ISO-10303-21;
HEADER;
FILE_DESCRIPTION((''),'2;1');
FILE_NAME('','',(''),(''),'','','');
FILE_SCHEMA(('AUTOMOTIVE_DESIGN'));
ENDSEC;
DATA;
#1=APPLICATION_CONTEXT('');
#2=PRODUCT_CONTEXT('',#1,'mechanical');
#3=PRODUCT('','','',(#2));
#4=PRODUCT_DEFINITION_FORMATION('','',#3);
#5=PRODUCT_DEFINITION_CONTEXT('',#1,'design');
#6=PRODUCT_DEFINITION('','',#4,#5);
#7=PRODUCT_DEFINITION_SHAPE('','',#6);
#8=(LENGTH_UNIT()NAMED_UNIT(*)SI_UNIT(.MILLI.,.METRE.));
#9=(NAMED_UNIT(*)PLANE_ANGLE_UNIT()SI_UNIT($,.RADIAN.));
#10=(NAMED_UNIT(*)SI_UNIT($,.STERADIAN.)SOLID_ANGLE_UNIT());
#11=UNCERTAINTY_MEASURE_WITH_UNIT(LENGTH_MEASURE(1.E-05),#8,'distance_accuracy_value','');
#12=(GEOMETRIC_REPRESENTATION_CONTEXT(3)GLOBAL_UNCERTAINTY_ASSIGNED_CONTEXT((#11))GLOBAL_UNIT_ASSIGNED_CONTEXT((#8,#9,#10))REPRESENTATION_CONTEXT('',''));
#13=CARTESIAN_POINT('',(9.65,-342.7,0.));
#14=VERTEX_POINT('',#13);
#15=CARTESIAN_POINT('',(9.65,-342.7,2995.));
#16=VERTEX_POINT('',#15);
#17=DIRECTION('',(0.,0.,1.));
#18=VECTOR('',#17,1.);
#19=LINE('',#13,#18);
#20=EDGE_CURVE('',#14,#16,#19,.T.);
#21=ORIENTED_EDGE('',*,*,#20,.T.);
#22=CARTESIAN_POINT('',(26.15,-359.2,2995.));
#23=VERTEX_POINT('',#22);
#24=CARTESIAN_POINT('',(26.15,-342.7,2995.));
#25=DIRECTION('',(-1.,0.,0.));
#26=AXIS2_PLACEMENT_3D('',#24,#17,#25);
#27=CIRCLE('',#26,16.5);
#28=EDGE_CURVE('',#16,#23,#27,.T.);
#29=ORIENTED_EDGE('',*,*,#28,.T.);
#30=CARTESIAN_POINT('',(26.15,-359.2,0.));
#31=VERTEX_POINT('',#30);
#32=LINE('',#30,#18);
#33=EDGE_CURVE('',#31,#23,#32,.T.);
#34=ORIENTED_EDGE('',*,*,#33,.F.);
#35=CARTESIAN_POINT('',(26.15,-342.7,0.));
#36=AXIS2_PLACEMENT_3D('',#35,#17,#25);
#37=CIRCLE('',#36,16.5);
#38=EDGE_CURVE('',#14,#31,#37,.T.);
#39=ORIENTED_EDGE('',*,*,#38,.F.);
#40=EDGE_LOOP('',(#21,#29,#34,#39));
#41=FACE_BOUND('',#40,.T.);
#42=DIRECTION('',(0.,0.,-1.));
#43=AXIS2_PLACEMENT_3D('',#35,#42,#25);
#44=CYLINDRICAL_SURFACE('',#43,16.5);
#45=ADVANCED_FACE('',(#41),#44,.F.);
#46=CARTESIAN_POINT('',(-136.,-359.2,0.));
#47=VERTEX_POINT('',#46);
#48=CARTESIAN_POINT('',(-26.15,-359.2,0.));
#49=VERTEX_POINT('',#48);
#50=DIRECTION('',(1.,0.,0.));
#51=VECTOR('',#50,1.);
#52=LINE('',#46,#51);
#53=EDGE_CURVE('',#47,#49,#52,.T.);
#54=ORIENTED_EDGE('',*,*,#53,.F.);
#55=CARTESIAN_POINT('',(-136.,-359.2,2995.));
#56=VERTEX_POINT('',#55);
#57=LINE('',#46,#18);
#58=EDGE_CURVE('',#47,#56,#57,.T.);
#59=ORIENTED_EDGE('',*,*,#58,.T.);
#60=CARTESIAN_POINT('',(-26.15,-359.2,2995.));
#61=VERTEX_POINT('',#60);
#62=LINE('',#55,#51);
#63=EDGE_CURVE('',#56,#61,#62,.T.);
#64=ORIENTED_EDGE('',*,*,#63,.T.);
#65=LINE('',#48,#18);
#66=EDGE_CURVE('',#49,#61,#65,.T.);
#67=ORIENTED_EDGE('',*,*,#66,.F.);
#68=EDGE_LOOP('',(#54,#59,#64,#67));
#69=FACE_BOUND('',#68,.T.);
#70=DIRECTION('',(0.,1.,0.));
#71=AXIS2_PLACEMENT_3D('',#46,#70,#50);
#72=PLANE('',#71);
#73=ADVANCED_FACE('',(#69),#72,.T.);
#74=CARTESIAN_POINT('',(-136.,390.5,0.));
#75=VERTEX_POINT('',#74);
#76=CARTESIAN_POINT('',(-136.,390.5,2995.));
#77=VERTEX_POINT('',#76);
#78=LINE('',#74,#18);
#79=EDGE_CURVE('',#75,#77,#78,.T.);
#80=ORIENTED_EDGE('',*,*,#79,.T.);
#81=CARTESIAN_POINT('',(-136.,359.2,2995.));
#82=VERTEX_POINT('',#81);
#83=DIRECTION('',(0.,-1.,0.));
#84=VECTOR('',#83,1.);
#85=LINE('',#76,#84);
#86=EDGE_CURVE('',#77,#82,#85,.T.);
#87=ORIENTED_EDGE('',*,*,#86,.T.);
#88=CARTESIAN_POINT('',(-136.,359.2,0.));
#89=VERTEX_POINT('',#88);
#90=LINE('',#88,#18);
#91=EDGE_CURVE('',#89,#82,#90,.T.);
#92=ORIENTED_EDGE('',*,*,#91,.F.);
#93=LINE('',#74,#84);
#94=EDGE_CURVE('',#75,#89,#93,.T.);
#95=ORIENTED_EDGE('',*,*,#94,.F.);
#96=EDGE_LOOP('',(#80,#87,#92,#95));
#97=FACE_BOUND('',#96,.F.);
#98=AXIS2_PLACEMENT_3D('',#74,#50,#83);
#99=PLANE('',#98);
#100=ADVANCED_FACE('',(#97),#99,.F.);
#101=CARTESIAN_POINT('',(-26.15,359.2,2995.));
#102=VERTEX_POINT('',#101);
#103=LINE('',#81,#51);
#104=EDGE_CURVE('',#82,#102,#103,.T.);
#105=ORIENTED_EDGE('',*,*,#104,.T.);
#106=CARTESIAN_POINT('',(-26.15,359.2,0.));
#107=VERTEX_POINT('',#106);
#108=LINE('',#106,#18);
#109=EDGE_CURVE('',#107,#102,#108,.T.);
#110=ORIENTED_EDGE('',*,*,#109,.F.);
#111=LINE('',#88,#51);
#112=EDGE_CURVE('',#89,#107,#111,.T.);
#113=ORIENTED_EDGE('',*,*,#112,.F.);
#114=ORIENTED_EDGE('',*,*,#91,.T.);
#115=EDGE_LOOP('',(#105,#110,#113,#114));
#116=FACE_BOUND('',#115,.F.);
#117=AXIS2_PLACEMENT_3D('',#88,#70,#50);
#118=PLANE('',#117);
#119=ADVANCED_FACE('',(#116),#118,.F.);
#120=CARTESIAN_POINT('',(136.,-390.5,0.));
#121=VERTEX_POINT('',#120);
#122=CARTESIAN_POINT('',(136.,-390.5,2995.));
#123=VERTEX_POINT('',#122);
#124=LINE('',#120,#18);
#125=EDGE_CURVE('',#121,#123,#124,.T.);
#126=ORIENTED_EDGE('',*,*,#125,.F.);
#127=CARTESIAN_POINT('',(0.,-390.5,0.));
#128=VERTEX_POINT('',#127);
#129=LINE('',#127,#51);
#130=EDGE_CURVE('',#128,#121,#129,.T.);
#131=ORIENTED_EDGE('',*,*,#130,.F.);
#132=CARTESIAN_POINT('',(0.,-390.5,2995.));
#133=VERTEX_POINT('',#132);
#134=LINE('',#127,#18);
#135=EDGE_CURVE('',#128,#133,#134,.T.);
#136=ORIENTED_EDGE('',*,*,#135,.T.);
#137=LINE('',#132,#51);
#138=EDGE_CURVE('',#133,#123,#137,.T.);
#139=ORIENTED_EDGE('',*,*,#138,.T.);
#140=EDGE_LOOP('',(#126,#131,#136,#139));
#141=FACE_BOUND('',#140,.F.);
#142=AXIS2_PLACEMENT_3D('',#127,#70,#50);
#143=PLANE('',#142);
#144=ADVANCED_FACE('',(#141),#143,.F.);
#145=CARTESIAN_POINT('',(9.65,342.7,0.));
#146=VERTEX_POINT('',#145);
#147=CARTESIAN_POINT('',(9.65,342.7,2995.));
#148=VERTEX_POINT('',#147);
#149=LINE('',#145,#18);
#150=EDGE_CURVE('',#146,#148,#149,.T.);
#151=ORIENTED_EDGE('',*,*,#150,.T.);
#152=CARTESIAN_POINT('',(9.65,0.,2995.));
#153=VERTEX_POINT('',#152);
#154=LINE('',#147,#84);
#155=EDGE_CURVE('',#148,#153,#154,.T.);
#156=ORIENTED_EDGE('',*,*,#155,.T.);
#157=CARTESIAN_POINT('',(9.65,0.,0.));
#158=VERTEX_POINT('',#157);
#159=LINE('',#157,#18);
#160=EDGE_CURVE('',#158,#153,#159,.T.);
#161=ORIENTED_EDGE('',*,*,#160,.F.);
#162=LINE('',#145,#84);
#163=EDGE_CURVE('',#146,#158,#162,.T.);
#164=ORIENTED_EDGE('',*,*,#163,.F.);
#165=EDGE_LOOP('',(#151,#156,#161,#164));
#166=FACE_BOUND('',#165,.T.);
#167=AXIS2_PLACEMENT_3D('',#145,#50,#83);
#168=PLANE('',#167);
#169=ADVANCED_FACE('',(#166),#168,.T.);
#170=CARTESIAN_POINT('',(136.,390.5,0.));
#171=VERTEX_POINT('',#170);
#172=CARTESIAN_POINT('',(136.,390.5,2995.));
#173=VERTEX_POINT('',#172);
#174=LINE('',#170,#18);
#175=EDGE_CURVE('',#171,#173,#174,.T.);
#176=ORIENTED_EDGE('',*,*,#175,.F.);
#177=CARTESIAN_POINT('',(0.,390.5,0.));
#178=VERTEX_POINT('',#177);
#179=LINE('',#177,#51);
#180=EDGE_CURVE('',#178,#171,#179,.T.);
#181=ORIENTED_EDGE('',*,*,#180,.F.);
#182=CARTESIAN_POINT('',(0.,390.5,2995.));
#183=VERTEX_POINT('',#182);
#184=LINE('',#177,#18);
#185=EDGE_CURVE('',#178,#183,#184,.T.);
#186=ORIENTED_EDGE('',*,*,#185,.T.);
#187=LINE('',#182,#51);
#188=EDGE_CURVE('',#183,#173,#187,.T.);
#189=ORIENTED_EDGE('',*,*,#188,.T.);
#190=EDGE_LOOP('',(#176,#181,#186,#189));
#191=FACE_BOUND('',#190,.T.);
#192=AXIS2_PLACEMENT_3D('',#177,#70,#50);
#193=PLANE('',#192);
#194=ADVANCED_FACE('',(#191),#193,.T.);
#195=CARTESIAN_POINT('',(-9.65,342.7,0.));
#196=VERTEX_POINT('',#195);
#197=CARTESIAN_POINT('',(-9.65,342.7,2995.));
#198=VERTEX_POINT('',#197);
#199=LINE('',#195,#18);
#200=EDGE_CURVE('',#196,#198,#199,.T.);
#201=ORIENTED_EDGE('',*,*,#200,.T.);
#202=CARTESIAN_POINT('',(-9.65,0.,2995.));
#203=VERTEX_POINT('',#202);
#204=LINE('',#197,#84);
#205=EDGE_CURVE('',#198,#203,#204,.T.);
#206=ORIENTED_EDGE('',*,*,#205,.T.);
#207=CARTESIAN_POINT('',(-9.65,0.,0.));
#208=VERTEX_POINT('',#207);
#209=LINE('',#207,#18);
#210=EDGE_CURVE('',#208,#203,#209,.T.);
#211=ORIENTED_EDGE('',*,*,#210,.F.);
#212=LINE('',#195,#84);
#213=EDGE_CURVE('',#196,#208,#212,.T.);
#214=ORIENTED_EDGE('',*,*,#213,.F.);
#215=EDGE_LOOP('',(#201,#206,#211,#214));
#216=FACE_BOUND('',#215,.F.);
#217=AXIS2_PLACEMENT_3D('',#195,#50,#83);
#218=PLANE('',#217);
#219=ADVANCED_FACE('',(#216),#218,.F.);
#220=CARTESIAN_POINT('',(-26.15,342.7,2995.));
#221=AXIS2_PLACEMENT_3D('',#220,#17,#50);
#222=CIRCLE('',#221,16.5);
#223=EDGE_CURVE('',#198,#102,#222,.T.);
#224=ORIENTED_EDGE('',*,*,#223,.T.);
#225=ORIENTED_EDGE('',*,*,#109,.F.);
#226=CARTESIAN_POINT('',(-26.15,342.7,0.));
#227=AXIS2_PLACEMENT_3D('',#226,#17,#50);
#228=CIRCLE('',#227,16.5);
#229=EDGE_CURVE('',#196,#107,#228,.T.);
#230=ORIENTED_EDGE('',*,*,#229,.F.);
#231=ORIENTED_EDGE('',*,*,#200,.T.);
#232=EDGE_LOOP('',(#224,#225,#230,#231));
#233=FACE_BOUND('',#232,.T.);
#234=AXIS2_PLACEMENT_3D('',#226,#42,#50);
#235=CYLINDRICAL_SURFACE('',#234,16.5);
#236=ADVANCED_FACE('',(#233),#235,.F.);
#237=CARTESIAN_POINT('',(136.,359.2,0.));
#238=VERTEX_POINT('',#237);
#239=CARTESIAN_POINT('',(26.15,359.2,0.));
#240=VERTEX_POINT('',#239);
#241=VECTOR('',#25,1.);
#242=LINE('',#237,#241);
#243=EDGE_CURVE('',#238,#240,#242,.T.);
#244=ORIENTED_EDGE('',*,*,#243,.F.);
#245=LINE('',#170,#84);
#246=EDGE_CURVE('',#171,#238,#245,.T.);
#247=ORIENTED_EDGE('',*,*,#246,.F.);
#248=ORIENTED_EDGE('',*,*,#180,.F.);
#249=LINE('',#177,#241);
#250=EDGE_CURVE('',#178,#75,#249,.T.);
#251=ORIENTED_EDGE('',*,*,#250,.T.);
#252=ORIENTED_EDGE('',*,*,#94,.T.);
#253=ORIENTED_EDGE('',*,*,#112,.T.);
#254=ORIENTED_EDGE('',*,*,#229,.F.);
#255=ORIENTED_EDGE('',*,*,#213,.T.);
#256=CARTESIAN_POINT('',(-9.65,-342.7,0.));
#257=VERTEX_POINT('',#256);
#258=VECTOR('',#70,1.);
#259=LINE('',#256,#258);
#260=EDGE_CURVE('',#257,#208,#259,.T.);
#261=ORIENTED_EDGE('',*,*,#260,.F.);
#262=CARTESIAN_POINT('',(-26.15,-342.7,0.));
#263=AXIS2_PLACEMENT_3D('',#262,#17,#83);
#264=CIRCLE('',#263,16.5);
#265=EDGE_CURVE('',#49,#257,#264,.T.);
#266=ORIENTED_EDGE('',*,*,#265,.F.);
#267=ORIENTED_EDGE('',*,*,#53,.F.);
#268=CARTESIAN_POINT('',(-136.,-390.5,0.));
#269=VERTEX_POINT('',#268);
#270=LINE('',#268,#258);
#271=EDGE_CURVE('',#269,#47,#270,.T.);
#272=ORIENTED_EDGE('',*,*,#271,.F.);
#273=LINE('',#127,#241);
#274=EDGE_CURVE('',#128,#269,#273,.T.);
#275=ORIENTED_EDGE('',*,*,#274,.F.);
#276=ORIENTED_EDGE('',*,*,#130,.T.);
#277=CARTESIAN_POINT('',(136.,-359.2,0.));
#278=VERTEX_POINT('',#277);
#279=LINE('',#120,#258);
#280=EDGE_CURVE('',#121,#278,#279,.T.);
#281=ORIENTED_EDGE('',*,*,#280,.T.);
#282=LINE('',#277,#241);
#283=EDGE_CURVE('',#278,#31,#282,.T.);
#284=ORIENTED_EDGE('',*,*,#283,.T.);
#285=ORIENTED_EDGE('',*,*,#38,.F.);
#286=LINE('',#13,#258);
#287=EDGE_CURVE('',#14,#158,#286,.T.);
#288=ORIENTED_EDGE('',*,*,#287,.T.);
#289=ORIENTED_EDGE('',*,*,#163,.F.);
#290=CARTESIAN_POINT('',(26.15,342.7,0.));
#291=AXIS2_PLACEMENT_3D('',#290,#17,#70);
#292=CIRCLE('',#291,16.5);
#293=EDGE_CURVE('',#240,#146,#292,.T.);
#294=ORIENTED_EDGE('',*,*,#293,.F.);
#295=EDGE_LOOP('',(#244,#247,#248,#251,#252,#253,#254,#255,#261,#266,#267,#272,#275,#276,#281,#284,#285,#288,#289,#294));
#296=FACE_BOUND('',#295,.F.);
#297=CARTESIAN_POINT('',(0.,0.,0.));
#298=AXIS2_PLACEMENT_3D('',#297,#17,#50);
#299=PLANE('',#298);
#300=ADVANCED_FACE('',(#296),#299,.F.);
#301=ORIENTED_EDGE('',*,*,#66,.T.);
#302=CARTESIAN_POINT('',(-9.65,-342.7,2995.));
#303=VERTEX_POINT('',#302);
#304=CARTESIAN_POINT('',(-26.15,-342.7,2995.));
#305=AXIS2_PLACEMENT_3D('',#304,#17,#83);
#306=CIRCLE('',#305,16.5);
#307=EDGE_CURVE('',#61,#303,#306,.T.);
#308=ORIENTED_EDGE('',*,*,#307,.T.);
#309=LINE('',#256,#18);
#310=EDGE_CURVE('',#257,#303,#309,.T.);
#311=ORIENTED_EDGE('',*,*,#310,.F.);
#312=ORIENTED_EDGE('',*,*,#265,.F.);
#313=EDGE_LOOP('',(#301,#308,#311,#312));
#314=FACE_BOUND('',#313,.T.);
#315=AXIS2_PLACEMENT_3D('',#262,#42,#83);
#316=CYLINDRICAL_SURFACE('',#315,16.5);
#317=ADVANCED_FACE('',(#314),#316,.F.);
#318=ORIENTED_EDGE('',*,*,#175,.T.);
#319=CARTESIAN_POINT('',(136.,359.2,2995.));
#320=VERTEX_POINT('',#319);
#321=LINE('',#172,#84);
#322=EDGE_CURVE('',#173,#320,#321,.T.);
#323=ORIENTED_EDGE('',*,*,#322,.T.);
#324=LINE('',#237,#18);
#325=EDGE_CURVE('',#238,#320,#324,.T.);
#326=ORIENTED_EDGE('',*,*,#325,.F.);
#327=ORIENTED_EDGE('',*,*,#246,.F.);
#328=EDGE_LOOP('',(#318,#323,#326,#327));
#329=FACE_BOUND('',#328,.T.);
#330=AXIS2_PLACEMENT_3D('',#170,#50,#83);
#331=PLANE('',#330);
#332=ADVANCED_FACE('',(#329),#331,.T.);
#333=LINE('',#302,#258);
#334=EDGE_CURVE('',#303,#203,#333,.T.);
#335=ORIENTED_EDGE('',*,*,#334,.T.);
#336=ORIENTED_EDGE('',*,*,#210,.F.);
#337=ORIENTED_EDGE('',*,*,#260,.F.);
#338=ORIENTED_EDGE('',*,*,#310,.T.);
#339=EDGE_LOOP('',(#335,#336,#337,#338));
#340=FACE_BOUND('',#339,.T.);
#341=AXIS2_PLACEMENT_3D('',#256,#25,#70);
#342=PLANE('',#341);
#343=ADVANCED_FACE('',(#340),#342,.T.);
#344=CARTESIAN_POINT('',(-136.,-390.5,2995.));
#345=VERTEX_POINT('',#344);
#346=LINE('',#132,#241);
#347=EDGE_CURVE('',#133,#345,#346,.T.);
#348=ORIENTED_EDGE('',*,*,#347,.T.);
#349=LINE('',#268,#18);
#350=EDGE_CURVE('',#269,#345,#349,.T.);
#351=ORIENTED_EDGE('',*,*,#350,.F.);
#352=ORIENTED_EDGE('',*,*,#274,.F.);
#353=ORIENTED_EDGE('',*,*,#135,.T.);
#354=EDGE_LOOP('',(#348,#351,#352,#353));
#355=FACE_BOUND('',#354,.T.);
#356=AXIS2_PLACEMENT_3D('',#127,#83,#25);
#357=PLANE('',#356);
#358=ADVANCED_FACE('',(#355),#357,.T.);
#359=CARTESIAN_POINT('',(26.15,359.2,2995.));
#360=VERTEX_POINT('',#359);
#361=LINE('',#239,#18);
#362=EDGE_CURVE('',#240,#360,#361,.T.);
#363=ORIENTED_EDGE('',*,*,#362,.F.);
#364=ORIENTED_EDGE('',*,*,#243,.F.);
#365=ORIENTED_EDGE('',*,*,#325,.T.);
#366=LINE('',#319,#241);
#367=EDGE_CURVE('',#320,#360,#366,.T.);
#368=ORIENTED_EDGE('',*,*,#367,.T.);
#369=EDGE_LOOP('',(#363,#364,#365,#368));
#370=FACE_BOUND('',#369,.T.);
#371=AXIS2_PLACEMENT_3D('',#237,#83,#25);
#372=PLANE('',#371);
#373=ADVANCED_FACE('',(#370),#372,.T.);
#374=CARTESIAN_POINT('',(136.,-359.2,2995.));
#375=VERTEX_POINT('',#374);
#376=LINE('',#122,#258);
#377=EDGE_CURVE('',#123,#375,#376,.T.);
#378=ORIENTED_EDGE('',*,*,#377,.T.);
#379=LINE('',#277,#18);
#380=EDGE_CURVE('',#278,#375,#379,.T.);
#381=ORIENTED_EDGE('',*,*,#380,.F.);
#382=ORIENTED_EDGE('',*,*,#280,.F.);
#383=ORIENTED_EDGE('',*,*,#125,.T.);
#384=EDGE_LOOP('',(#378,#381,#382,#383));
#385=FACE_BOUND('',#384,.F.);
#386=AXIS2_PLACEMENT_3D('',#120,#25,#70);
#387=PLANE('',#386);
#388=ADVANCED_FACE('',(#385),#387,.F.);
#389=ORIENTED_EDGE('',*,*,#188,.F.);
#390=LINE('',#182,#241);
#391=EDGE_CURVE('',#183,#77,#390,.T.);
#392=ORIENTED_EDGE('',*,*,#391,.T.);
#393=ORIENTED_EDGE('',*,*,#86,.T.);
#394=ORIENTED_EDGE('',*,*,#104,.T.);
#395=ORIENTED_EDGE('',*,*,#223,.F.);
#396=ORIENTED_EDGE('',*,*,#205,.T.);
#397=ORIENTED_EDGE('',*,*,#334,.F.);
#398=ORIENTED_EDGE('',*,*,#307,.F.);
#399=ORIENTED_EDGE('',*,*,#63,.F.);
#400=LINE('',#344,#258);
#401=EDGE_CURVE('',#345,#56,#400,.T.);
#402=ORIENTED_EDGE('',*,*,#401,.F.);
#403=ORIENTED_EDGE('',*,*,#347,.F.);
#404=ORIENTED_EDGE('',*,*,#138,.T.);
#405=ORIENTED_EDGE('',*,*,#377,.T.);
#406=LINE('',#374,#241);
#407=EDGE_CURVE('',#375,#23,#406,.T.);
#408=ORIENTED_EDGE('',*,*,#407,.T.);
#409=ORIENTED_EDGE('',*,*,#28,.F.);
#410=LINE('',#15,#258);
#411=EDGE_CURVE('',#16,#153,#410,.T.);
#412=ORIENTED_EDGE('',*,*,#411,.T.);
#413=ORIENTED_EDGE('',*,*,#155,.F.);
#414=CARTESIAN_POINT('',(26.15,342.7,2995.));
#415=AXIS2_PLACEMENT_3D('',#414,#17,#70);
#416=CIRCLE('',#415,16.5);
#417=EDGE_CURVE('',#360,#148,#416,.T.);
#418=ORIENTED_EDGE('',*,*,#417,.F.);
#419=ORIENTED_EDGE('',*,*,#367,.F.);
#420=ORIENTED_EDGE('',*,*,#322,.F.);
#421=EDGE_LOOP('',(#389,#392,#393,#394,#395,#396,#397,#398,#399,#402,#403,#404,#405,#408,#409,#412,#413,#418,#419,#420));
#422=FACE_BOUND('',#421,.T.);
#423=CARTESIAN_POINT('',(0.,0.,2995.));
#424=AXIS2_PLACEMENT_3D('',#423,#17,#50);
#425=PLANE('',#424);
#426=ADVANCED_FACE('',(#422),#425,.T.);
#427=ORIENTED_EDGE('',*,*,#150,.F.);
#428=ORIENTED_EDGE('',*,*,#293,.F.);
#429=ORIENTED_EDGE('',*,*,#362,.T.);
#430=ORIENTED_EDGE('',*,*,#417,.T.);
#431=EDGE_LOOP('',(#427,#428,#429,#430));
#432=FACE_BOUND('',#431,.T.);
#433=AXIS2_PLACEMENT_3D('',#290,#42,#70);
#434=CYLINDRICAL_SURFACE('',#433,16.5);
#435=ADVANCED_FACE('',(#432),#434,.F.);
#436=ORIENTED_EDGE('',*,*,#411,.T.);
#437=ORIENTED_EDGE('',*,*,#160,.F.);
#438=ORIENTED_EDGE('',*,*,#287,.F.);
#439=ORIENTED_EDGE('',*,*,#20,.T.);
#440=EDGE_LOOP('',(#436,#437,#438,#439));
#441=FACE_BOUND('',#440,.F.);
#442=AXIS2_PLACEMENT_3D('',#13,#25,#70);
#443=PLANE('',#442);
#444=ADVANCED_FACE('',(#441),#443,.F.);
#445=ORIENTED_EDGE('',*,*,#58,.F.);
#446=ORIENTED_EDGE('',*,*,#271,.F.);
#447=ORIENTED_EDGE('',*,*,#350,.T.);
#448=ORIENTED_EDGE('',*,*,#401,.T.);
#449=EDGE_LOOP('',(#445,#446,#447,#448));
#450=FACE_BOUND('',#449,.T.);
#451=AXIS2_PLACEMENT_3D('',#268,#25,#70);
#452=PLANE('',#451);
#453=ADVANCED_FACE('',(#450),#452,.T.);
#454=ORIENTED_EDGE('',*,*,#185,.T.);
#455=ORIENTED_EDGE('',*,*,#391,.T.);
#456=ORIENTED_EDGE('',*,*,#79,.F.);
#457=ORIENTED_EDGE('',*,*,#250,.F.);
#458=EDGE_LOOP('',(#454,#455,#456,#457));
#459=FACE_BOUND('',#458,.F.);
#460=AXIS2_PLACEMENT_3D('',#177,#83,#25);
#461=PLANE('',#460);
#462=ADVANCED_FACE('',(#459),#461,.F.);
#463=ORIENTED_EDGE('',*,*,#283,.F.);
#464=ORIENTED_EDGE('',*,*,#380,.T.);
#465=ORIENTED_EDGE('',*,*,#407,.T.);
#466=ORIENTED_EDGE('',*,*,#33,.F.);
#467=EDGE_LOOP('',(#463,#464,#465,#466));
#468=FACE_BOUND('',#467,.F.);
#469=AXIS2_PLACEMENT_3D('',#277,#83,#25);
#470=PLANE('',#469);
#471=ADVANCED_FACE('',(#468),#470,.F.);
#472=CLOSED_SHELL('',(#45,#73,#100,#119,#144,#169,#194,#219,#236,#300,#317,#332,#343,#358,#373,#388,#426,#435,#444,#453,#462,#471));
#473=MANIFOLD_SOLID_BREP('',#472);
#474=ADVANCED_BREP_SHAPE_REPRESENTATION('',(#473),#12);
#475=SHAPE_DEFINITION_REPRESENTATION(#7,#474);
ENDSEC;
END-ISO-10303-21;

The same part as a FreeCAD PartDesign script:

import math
import FreeCAD as App
import Part
import Sketcher
from FreeCAD import Vector

doc = App.newDocument("Part")
params = doc.addObject("Spreadsheet::Sheet", "Params")
for row, (alias, value) in enumerate([
    ("sketch1_radius", "16.5 mm"),
    ("sketch1_height", "31.3 mm"),
    ("pad1_length", "2995 mm"),
], start=1):
    params.set(f"A{row}", alias)
    params.set(f"B{row}", "=" + value)
    params.setAlias(f"B{row}", alias)

body = doc.addObject("PartDesign::Body", "Body")

sketch1 = body.newObject("Sketcher::SketchObject", "Sketch")
sketch1.AttachmentSupport = (doc.getObject("XY_Plane"), [""])
sketch1.MapMode = "FlatFace"
sketch1.addGeometry([
    Part.LineSegment(Vector(-136, -359, 0), Vector(-136, -390, 0)),
    Part.LineSegment(Vector(-136, -390, 0), Vector(136, -390, 0)),
    Part.LineSegment(Vector(136, -390, 0), Vector(136, -359, 0)),
    Part.LineSegment(Vector(136, -359, 0), Vector(26, -359, 0)),
    Part.ArcOfCircle(Part.Circle(Vector(26, -343, 0), Vector(0, 0, 1), 16), math.radians(180), math.radians(270)),
    Part.LineSegment(Vector(10, -343, 0), Vector(10, 343, 0)),
    Part.ArcOfCircle(Part.Circle(Vector(26, 343, 0), Vector(0, 0, 1), 16), math.radians(90), math.radians(180)),
    Part.LineSegment(Vector(26, 359, 0), Vector(136, 359, 0)),
    Part.LineSegment(Vector(136, 359, 0), Vector(136, 390, 0)),
    Part.LineSegment(Vector(136, 390, 0), Vector(-136, 390, 0)),
    Part.LineSegment(Vector(-136, 390, 0), Vector(-136, 359, 0)),
    Part.LineSegment(Vector(-136, 359, 0), Vector(-26, 359, 0)),
    Part.ArcOfCircle(Part.Circle(Vector(-26, 343, 0), Vector(0, 0, 1), 16), math.radians(0), math.radians(90)),
    Part.LineSegment(Vector(-10, 343, 0), Vector(-10, -343, 0)),
    Part.ArcOfCircle(Part.Circle(Vector(-26, -343, 0), Vector(0, 0, 1), 16), math.radians(-90), math.radians(0)),
    Part.LineSegment(Vector(-26, -359, 0), Vector(-136, -359, 0)),
], False)
sketch1.addConstraint([
    Sketcher.Constraint("Coincident", 0, 2, 1, 1),
    Sketcher.Constraint("Coincident", 1, 2, 2, 1),
    Sketcher.Constraint("Coincident", 2, 2, 3, 1),
    Sketcher.Constraint("Tangent", 3, 2, 4, 2),
    Sketcher.Constraint("Tangent", 4, 1, 5, 1),
    Sketcher.Constraint("Tangent", 5, 2, 6, 2),
    Sketcher.Constraint("Tangent", 6, 1, 7, 1),
    Sketcher.Constraint("Coincident", 7, 2, 8, 1),
    Sketcher.Constraint("Coincident", 8, 2, 9, 1),
    Sketcher.Constraint("Coincident", 9, 2, 10, 1),
    Sketcher.Constraint("Coincident", 10, 2, 11, 1),
    Sketcher.Constraint("Tangent", 11, 2, 12, 2),
    Sketcher.Constraint("Tangent", 12, 1, 13, 1),
    Sketcher.Constraint("Tangent", 13, 2, 14, 2),
    Sketcher.Constraint("Tangent", 14, 1, 15, 1),
    Sketcher.Constraint("Coincident", 15, 2, 0, 1),
    Sketcher.Constraint("Vertical", 0),
    Sketcher.Constraint("Horizontal", 1),
    Sketcher.Constraint("Vertical", 2),
    Sketcher.Constraint("Horizontal", 3),
    Sketcher.Constraint("Vertical", 5),
    Sketcher.Constraint("Horizontal", 7),
    Sketcher.Constraint("Vertical", 8),
    Sketcher.Constraint("Horizontal", 9),
    Sketcher.Constraint("Vertical", 10),
    Sketcher.Constraint("Horizontal", 11),
    Sketcher.Constraint("Vertical", 13),
    Sketcher.Constraint("Horizontal", 15),
    Sketcher.Constraint("Equal", 4, 6),
    Sketcher.Constraint("Equal", 6, 12),
    Sketcher.Constraint("Equal", 12, 14),
    Sketcher.Constraint("Symmetric", 4, 3, 12, 3, -1, 1),
    Sketcher.Constraint("Symmetric", 0, 2, 8, 2, -1, 1),
    Sketcher.Constraint("Symmetric", 7, 2, 10, 2, -2),
    Sketcher.Constraint("Symmetric", 2, 2, 15, 2, -2),
    Sketcher.Constraint("Radius", 4, 16.5),
    Sketcher.Constraint("DistanceY", 0, 2, 0, 1, 31.3),
    Sketcher.Constraint("DistanceX", 0, 2, -1, 1, 136.0),
    Sketcher.Constraint("DistanceY", 0, 2, -1, 1, 390.5),
    Sketcher.Constraint("DistanceX", -1, 1, 4, 1, 9.65),
])
sketch1.setExpression("Constraints[35]", "Params.sketch1_radius")
sketch1.setExpression("Constraints[36]", "Params.sketch1_height")
pad1 = body.newObject("PartDesign::Pad", "Pad")
pad1.Profile = sketch1
pad1.setExpression("Length", "Params.pad1_length")

doc.recompute()
